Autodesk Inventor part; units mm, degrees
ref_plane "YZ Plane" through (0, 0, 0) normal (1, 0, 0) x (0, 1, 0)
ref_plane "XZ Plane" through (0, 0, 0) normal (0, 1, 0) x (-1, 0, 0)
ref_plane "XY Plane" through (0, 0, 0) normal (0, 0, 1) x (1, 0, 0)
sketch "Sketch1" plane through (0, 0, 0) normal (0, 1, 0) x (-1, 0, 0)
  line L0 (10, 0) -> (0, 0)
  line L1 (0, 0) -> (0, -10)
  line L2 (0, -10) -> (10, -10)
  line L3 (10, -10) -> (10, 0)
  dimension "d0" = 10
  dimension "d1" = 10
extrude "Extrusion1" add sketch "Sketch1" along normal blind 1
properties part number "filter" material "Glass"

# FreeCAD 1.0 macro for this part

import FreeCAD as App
import Part
import Sketcher
Q = App.Units.Quantity


def add_polygon(sketch, points):
    """Adds a closed chain of lines whose ends are joined by coincident constraints."""
    first, n = sketch.GeometryCount, len(points)
    for a, b in zip(points, points[1:] + points[:1]):
        sketch.addGeometry(Part.LineSegment(App.Vector(*a, 0), App.Vector(*b, 0)), False)
    for i in range(n):
        sketch.addConstraint(Sketcher.Constraint("Coincident", first + i, 2, first + (i + 1) % n, 1))

doc = App.newDocument("Part")
body = doc.addObject("PartDesign::Body", "Body")

# Sketch on XZ plane
sketch1 = doc.addObject("Sketcher::SketchObject", "Sketch")
body.addObject(sketch1)
sketch1.AttachmentSupport = (doc.XZ_Plane, [""])
sketch1.MapMode = "FlatFace"
add_polygon(sketch1, [(-10, -10), (-10, 0), (0, 0), (0, -10)])  # lines 0-3
sketch1.addConstraint([
    Sketcher.Constraint("Vertical", 0),
    Sketcher.Constraint("Horizontal", 1),
    Sketcher.Constraint("Vertical", 2),
    Sketcher.Constraint("Horizontal", 3),
    Sketcher.Constraint("Coincident", 1, 2, -1, 1),
    Sketcher.Constraint("Equal", 3, 0),
    Sketcher.Constraint("DistanceX", 1, 1, 1, 2, Q("10 mm")),
])
pad1 = doc.addObject("PartDesign::Pad", "Pad")
body.addObject(pad1)
pad1.Profile = sketch1
pad1.Length = 1
pad1.Reversed = True

doc.recompute()
